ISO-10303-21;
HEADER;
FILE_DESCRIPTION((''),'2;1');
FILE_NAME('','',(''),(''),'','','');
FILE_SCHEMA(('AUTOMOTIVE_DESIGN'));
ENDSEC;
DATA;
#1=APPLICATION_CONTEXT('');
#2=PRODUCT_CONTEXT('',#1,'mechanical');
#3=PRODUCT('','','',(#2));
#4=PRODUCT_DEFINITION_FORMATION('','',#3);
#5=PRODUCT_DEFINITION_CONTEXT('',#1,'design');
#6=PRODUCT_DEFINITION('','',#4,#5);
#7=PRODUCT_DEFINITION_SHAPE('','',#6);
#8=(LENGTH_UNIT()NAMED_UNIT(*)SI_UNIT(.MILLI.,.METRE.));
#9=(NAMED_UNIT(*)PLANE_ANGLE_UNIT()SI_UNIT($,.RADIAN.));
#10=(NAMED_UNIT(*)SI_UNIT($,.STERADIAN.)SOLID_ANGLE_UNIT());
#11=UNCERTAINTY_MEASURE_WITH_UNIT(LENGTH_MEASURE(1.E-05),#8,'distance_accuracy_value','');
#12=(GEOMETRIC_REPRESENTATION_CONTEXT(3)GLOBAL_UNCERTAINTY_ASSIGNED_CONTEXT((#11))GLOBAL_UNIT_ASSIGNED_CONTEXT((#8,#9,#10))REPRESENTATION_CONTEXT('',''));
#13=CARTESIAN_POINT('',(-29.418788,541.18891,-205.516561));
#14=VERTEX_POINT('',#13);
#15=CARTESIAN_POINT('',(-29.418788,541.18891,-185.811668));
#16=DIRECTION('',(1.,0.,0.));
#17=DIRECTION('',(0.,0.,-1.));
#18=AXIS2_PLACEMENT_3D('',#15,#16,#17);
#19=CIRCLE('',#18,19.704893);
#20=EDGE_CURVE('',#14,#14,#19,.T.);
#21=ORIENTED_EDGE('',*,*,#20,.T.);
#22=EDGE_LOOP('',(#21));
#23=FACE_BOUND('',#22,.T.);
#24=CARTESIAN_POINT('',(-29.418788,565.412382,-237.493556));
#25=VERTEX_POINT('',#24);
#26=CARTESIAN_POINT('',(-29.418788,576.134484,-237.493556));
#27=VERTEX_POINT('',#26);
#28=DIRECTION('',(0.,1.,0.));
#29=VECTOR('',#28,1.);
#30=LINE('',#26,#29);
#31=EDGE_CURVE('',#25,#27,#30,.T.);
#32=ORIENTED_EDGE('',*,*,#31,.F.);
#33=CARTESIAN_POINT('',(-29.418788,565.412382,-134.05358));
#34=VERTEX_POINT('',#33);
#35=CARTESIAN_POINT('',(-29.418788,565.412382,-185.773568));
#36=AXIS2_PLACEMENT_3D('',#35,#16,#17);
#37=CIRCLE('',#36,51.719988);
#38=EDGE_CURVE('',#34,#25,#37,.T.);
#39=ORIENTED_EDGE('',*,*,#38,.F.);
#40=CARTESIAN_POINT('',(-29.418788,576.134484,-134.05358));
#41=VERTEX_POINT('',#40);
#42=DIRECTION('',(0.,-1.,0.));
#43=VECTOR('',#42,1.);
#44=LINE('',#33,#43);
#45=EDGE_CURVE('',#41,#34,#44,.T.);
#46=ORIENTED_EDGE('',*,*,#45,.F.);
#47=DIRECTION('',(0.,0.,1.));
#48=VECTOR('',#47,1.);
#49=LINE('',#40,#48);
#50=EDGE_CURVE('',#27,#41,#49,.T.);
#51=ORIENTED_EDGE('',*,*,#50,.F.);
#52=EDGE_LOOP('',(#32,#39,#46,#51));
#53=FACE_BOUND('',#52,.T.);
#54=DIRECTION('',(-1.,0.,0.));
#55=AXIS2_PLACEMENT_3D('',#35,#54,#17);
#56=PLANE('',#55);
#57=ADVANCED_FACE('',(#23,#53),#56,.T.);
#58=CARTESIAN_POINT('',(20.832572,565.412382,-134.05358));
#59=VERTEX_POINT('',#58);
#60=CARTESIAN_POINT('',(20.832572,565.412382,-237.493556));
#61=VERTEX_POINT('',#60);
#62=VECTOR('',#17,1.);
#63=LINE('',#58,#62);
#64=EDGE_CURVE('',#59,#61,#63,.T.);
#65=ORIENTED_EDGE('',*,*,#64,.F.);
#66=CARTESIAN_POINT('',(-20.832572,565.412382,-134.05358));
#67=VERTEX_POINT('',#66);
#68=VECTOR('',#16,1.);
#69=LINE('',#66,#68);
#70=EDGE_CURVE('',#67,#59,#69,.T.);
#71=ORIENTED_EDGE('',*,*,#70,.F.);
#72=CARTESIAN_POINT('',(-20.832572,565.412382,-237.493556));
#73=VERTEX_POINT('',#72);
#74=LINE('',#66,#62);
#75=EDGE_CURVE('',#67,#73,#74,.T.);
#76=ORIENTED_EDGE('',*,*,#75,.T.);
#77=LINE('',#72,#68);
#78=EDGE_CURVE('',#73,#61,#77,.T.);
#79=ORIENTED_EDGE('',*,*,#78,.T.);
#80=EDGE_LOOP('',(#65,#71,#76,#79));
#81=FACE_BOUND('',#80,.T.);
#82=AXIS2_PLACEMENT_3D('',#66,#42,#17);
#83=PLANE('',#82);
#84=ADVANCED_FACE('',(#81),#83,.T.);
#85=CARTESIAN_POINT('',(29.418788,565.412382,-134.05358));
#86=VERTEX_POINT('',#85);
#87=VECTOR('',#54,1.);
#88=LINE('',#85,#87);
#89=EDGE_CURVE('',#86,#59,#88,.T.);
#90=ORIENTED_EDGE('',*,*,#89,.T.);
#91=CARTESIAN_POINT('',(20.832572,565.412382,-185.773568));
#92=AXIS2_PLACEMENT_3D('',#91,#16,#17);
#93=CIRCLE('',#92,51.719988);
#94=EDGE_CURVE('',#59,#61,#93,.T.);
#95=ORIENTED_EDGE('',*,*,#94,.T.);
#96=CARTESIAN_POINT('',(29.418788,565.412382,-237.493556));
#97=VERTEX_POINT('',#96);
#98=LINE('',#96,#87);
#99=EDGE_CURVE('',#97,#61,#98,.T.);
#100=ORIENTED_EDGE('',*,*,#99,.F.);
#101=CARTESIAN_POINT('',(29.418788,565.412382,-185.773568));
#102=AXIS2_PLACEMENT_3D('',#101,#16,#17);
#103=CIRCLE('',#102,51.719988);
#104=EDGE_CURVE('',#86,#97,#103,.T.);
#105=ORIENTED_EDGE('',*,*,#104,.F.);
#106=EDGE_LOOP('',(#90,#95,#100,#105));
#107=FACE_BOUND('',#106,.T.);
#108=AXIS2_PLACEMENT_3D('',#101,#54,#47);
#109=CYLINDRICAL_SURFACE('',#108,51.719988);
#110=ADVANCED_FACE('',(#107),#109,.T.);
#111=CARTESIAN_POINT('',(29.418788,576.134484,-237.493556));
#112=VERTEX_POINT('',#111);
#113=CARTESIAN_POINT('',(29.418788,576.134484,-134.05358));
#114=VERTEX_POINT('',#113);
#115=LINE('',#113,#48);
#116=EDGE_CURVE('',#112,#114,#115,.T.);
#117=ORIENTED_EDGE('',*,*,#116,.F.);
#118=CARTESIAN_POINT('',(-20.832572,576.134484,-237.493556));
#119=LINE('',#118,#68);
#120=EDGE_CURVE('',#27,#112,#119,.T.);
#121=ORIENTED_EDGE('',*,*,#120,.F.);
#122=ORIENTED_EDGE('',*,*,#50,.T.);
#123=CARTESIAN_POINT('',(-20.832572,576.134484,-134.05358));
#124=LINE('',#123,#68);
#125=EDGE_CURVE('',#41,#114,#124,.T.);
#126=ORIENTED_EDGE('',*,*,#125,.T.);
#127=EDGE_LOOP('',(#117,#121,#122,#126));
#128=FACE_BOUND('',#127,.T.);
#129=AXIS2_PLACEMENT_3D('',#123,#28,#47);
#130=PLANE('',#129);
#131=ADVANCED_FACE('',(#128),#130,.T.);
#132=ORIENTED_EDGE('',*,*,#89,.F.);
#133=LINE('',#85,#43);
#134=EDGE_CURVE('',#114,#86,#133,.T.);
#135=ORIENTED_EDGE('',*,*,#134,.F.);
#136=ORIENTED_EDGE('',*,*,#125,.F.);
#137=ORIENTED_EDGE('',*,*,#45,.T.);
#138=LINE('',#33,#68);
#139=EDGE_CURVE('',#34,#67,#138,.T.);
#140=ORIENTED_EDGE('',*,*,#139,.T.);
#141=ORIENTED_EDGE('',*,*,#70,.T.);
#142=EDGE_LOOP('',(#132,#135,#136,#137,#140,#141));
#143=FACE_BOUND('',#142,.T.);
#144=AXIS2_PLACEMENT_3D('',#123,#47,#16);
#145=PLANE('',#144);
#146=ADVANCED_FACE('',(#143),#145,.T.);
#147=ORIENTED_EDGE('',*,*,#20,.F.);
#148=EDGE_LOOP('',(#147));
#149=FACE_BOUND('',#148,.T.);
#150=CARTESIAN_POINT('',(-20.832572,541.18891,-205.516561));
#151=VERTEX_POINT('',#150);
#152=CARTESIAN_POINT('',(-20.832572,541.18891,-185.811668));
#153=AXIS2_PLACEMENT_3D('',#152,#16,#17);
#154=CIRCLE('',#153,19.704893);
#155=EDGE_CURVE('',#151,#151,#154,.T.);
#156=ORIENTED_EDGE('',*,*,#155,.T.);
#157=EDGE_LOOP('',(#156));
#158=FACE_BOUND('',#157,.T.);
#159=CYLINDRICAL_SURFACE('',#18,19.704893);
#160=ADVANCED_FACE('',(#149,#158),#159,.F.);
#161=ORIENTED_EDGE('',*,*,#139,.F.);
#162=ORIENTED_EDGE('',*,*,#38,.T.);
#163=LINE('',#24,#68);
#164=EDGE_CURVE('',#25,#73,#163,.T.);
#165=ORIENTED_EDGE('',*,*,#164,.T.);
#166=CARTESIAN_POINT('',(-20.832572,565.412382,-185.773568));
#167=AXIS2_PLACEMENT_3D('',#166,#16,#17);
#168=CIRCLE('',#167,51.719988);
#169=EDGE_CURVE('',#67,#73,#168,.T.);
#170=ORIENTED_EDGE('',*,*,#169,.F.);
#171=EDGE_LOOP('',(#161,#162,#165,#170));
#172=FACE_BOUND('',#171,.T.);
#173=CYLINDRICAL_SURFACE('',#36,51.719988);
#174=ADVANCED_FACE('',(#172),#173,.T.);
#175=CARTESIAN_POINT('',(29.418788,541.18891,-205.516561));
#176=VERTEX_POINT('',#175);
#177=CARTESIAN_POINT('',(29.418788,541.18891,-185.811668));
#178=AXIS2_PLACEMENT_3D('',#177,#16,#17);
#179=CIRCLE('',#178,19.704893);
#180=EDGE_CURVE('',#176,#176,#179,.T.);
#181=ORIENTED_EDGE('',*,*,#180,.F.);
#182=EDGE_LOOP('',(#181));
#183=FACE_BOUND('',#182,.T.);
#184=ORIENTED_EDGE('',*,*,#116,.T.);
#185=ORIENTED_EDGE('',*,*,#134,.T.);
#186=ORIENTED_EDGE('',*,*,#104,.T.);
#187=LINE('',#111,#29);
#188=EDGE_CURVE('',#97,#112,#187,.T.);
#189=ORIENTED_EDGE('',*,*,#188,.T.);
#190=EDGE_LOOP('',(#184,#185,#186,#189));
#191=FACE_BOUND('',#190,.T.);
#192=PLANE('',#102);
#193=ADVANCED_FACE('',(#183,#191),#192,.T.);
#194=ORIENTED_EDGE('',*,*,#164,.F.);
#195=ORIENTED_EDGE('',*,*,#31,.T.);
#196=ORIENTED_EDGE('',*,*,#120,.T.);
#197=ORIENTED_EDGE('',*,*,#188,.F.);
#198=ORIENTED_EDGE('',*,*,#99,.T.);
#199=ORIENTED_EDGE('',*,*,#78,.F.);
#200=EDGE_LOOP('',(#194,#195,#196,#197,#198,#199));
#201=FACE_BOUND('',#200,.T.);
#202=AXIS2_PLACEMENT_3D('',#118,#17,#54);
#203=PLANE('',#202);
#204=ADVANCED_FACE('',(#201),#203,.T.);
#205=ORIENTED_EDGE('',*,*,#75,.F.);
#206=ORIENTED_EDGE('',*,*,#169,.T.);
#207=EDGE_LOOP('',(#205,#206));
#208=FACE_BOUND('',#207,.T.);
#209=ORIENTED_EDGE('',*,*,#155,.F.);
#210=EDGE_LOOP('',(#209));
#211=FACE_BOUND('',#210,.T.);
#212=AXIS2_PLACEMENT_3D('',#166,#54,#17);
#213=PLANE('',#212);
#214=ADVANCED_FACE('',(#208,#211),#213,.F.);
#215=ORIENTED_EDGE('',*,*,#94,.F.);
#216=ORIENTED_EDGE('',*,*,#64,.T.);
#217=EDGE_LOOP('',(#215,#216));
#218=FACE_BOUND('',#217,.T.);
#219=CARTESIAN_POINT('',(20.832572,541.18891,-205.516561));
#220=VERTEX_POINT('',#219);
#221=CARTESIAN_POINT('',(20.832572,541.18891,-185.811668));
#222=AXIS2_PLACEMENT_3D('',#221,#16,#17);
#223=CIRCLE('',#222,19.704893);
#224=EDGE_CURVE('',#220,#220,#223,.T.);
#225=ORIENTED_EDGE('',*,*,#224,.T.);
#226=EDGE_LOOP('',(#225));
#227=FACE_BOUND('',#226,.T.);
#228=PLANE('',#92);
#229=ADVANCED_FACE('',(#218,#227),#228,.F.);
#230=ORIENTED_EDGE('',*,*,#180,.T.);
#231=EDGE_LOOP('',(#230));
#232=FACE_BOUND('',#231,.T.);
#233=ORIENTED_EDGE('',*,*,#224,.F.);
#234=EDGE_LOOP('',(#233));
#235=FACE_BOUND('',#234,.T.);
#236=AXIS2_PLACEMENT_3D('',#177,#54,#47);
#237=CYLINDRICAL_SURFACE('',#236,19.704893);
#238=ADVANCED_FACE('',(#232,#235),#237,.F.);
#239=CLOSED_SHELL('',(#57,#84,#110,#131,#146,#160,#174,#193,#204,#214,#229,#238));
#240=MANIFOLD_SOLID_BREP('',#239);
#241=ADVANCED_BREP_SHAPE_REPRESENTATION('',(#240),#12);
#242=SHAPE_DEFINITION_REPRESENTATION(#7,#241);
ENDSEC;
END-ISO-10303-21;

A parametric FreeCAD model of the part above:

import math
import FreeCAD as App
import Part
import Sketcher

V = App.Vector


def add_polygon(sketch, points):
    """Adds a closed chain of lines whose ends are joined by coincident constraints."""
    first, n = sketch.GeometryCount, len(points)
    for a, b in zip(points, points[1:] + points[:1]):
        sketch.addGeometry(Part.LineSegment(App.Vector(*a, 0), App.Vector(*b, 0)), False)
    for i in range(n):
        sketch.addConstraint(Sketcher.Constraint("Coincident", first + i, 2, first + (i + 1) % n, 1))

doc = App.newDocument("Part")
params = doc.addObject("Spreadsheet::Sheet", "Params")
for row, (alias, value) in enumerate([
    ("pad1_length", "20.832572 mm"),
    ("pad1_length2", "20.832572 mm"),
    ("pad2_length", "8.586216 mm"),
], start=1):
    params.set(f"A{row}", alias)
    params.set(f"B{row}", "=" + value)
    params.setAlias(f"B{row}", alias)

body = doc.addObject("PartDesign::Body", "Body")

sketch1 = body.newObject("Sketcher::SketchObject", "Sketch")
sketch1.AttachmentSupport = (doc.getObject("YZ_Plane"), [""])
sketch1.MapMode = "FlatFace"
add_polygon(sketch1, [(576, -134), (565, -134), (565, -237), (576, -237)])
sketch1.addConstraint(Sketcher.Constraint("Horizontal", 0))
sketch1.addConstraint(Sketcher.Constraint("Vertical", 1))
sketch1.addConstraint(Sketcher.Constraint("Horizontal", 2))
sketch1.addConstraint(Sketcher.Constraint("Vertical", 3))
sketch1.addConstraint(Sketcher.Constraint("DistanceX", 0, 2, 0, 1, 10.722102))
sketch1.addConstraint(Sketcher.Constraint("DistanceY", 1, 2, 1, 1, 103.439976))
sketch1.addConstraint(Sketcher.Constraint("DistanceX", -1, 1, 0, 2, 565.412382))
sketch1.addConstraint(Sketcher.Constraint("DistanceY", 0, 2, -1, 1, 134.05358))
pad1 = body.newObject("PartDesign::Pad", "Pad")
pad1.Profile = sketch1
pad1.Type = "TwoLengths"
pad1.setExpression("Length", "Params.pad1_length")
pad1.setExpression("Length2", "Params.pad1_length2")

sketch2 = body.newObject("Sketcher::SketchObject", "Sketch001")
sketch2.AttachmentSupport = (doc.getObject("YZ_Plane"), [""])
sketch2.MapMode = "FlatFace"
sketch2.AttachmentOffset = App.Placement(V(0, 0, 20.832572), App.Rotation())
sketch2.addGeometry(Part.LineSegment(V(576, -134, 0), V(565, -134, 0)), False)
sketch2.addGeometry(Part.ArcOfCircle(Part.Circle(V(565, -186, 0), V(0, 0, 1), 52), math.radians(90), math.radians(270)), False)
sketch2.addGeometry(Part.LineSegment(V(565, -237, 0), V(576, -237, 0)), False)
sketch2.addGeometry(Part.LineSegment(V(576, -237, 0), V(576, -134, 0)), False)
sketch2.addGeometry(Part.Circle(V(541, -186, 0), V(0, 0, 1), 20), False)
sketch2.addConstraint(Sketcher.Constraint("Tangent", 0, 2, 1, 1))
sketch2.addConstraint(Sketcher.Constraint("Tangent", 1, 2, 2, 1))
sketch2.addConstraint(Sketcher.Constraint("Coincident", 2, 2, 3, 1))
sketch2.addConstraint(Sketcher.Constraint("Coincident", 3, 2, 0, 1))
sketch2.addConstraint(Sketcher.Constraint("Horizontal", 0))
sketch2.addConstraint(Sketcher.Constraint("Horizontal", 2))
sketch2.addConstraint(Sketcher.Constraint("Vertical", 3))
sketch2.addConstraint(Sketcher.Constraint("Diameter", 4, 39.409785))
sketch2.addConstraint(Sketcher.Constraint("Radius", 1, 51.719988))
sketch2.addConstraint(Sketcher.Constraint("DistanceY", 4, 3, 1, 3, 0.0381))
sketch2.addConstraint(Sketcher.Constraint("DistanceX", 0, 2, 0, 1, 10.722102))
sketch2.addConstraint(Sketcher.Constraint("DistanceX", -1, 1, 1, 3, 565.412382))
sketch2.addConstraint(Sketcher.Constraint("DistanceY", 1, 3, -1, 1, 185.773568))
sketch2.addConstraint(Sketcher.Constraint("DistanceX", -1, 1, 4, 3, 541.18891))
pad2 = body.newObject("PartDesign::Pad", "Pad001")
pad2.Profile = sketch2
pad2.setExpression("Length", "Params.pad2_length")
doc.recompute()

mirrored = body.newObject("PartDesign::Mirrored", "Mirrored")
mirrored.Originals = [pad2]
mirrored.MirrorPlane = (doc.getObject("YZ_Plane"), [""])
body.Tip = mirrored

doc.recompute()
